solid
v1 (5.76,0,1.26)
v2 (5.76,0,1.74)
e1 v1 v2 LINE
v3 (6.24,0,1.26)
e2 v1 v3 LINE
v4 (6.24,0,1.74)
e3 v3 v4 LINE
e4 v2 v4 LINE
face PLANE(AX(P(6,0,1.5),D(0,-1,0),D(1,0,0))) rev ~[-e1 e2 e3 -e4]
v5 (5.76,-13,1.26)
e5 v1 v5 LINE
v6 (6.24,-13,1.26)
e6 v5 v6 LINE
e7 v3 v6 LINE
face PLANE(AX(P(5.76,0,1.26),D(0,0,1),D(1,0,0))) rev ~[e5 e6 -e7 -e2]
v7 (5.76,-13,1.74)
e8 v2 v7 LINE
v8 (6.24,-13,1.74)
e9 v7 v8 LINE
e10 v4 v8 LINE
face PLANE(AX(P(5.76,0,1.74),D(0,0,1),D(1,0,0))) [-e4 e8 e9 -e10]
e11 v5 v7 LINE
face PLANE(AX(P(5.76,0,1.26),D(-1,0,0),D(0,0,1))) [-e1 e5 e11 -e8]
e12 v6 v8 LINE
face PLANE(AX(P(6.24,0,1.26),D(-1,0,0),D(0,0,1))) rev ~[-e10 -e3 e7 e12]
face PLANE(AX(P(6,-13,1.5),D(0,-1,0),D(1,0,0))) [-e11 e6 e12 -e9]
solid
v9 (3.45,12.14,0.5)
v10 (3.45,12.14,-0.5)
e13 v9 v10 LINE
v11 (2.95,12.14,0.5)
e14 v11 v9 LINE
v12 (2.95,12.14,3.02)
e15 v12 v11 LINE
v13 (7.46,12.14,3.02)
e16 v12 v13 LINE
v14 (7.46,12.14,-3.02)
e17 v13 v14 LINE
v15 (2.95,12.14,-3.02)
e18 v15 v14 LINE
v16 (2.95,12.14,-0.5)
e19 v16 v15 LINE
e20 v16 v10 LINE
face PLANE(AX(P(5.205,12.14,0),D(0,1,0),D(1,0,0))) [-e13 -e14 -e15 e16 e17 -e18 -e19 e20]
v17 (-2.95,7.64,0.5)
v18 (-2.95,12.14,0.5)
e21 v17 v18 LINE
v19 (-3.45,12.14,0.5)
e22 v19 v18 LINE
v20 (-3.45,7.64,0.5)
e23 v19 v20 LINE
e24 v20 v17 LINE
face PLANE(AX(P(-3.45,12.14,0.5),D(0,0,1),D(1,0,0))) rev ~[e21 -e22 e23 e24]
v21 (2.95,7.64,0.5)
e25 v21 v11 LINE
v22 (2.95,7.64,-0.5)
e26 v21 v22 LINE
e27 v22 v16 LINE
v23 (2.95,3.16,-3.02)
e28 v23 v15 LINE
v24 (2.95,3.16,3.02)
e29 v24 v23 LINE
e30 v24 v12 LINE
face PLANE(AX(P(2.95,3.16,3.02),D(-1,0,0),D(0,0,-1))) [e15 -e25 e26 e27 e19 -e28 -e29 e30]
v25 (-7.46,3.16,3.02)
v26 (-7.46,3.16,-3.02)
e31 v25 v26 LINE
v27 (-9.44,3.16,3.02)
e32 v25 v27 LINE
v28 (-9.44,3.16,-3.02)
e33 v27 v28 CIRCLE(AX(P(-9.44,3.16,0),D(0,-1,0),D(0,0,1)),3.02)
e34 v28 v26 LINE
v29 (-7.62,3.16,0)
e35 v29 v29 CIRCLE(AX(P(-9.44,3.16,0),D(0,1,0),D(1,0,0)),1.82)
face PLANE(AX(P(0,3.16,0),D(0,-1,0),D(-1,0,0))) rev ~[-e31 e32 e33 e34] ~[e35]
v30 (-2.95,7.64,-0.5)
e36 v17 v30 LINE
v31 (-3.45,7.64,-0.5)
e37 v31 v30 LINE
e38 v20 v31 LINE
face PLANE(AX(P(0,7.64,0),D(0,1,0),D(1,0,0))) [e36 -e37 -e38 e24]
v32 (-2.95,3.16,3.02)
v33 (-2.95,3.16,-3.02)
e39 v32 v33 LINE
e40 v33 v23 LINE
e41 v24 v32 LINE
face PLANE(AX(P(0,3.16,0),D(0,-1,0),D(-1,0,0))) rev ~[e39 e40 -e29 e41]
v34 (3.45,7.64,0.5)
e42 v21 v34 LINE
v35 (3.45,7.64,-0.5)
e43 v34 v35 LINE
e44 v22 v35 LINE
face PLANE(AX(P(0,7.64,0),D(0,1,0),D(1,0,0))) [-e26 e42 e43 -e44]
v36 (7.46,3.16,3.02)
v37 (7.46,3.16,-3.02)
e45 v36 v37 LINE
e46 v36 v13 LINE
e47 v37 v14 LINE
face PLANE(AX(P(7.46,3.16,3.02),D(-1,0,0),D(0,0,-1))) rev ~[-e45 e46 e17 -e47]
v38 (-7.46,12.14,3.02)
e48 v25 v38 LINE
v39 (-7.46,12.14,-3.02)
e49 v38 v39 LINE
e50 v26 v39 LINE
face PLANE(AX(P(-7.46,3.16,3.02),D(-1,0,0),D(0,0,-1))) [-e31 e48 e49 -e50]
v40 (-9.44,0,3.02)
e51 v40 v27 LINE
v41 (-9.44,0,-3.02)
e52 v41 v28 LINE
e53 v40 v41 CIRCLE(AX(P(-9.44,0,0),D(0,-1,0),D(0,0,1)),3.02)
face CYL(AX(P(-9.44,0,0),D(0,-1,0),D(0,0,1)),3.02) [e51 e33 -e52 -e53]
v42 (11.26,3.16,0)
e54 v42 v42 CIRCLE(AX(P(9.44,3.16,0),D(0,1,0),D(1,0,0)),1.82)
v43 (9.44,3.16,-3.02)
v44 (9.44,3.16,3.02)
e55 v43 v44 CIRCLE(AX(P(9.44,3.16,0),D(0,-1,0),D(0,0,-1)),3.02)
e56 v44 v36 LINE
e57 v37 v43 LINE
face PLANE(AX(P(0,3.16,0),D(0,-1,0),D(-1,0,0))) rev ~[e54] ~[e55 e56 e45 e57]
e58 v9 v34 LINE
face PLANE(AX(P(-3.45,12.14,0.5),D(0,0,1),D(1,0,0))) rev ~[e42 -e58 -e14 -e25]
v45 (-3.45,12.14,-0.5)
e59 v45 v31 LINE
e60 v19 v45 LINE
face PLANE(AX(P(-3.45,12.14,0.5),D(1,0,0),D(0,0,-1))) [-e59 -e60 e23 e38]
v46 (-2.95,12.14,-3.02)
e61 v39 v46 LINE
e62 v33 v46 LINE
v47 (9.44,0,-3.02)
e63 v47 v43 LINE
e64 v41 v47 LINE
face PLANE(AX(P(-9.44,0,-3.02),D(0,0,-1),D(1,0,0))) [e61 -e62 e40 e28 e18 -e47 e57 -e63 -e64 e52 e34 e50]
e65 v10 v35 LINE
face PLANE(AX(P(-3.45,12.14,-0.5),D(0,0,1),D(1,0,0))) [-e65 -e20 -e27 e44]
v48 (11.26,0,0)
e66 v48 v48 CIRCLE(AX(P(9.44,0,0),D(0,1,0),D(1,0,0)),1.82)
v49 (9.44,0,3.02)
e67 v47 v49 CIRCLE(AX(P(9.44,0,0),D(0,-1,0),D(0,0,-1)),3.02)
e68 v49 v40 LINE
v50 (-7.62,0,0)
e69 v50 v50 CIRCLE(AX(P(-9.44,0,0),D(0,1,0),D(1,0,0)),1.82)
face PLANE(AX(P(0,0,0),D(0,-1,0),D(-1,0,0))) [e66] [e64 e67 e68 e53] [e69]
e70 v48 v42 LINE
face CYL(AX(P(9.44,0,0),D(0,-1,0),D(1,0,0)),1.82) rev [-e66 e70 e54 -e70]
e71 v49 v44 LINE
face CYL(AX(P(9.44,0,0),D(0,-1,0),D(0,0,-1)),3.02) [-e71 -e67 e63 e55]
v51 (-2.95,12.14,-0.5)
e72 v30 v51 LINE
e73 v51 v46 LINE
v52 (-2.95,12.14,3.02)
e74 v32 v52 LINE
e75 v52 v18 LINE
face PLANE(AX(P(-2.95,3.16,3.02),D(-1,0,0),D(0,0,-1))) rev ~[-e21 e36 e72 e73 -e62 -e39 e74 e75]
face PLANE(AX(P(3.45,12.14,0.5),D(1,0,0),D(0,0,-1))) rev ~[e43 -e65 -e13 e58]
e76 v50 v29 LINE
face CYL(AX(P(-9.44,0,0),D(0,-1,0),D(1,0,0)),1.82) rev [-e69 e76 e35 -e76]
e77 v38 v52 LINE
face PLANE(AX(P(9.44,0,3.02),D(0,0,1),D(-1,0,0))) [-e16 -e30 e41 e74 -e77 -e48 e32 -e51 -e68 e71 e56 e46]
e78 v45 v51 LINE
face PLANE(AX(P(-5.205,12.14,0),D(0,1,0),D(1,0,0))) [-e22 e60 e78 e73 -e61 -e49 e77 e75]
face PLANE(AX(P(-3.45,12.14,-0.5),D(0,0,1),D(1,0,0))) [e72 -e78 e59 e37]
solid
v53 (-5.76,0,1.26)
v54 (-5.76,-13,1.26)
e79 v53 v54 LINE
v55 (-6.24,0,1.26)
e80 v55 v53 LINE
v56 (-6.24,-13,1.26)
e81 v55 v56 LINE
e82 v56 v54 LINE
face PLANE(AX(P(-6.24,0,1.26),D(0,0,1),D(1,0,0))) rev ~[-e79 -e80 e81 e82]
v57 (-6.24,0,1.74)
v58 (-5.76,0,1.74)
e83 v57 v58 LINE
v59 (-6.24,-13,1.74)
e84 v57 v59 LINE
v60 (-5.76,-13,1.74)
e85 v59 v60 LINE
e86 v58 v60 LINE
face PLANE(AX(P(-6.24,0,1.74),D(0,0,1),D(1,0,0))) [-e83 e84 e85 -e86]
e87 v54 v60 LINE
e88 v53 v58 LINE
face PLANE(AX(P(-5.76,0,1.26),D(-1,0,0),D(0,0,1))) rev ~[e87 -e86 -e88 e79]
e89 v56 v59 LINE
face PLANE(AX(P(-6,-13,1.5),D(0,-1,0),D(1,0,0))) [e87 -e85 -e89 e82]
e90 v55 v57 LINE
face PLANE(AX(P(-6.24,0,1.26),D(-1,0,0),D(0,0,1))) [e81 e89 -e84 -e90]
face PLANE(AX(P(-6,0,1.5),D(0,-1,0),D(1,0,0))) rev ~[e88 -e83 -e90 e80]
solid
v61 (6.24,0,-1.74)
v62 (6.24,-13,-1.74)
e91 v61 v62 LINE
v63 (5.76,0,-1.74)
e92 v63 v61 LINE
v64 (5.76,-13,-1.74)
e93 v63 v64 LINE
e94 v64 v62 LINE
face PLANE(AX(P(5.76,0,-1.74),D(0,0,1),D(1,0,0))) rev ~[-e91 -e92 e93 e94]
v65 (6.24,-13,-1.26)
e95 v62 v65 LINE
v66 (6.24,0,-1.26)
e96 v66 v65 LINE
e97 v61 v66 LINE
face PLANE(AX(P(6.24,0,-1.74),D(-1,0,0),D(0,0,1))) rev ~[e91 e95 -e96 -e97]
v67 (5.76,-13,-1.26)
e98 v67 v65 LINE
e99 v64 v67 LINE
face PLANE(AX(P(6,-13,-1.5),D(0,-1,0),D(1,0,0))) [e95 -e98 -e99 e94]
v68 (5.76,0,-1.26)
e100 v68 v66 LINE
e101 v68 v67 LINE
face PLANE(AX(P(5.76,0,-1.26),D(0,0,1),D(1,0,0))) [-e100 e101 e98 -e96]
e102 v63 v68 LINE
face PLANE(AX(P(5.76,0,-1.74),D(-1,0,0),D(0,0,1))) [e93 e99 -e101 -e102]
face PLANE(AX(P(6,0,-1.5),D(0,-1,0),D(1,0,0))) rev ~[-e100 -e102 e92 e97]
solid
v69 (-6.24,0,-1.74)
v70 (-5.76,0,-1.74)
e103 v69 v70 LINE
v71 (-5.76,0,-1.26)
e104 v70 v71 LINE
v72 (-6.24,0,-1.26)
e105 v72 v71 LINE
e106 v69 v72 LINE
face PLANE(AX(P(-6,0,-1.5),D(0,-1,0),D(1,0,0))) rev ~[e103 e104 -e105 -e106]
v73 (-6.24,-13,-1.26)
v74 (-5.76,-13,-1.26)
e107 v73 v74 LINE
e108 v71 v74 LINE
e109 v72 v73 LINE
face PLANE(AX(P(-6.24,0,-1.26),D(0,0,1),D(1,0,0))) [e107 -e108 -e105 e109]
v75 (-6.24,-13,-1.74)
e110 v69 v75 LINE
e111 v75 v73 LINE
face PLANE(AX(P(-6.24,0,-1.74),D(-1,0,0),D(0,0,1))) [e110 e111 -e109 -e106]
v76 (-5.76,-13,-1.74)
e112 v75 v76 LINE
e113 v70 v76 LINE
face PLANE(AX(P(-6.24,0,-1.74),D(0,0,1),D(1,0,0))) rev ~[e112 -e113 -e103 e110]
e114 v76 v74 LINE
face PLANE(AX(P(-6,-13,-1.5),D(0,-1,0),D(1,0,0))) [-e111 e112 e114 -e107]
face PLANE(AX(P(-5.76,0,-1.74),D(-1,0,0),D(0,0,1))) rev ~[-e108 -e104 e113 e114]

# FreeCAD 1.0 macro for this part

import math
import FreeCAD as App
import Part
import Sketcher
from FreeCAD import Vector

doc = App.newDocument("Part")
params = doc.addObject("Spreadsheet::Sheet", "Params")
for row, (alias, value) in enumerate([
    ("sketch1_diameter", "3.64 mm"),
    ("sketch1_radius", "3.02 mm"),
    ("sketch1_width", "18.88 mm"),
    ("pad1_length", "3.16 mm"),
    ("sketch2_width", "4.51 mm"),
    ("sketch2_height", "6.04 mm"),
    ("pad2_length", "8.98 mm"),
    ("sketch3_height", "1 mm"),
    ("sketch3_width", "6.9 mm"),
    ("pocket1_length", "4.5 mm"),
    ("sketch4_width", "0.48 mm"),
    ("pad3_length", "13 mm"),
    ("sketch5_width", "0.48 mm"),
    ("pad4_length", "13 mm"),
    ("sketch6_width", "0.48 mm"),
    ("pad5_length", "13 mm"),
    ("sketch7_width", "0.48 mm"),
    ("pad6_length", "13 mm"),
], start=1):
    params.set(f"A{row}", alias)
    params.set(f"B{row}", "=" + value)
    params.setAlias(f"B{row}", alias)

body = doc.addObject("PartDesign::Body", "Body")

# Sketch on XZ plane
sketch1 = body.newObject("Sketcher::SketchObject", "Sketch")
sketch1.AttachmentSupport = (doc.getObject("XZ_Plane"), [""])
sketch1.MapMode = "FlatFace"
sketch1.addGeometry(Part.LineSegment(Vector(9.44, -3.02, 0), Vector(-9.44, -3.02, 0)), False)
sketch1.addGeometry(Part.ArcOfCircle(Part.Circle(Vector(-9.44, 0, 0), Vector(0, 0, 1), 3.02), math.radians(90), math.radians(270)), False)
sketch1.addGeometry(Part.LineSegment(Vector(-9.44, 3.02, 0), Vector(9.44, 3.02, 0)), False)
sketch1.addGeometry(Part.ArcOfCircle(Part.Circle(Vector(9.44, 0, 0), Vector(0, 0, 1), 3.02), math.radians(-90), math.radians(90)), False)
sketch1.addGeometry(Part.Circle(Vector(9.44, 0, 0), Vector(0, 0, 1), 1.82), False)
sketch1.addGeometry(Part.Circle(Vector(-9.44, 0, 0), Vector(0, 0, 1), 1.82), False)
sketch1.addConstraint(Sketcher.Constraint("Tangent", 0, 2, 1, 2))
sketch1.addConstraint(Sketcher.Constraint("Tangent", 1, 1, 2, 1))
sketch1.addConstraint(Sketcher.Constraint("Tangent", 2, 2, 3, 2))
sketch1.addConstraint(Sketcher.Constraint("Tangent", 3, 1, 0, 1))
sketch1.addConstraint(Sketcher.Constraint("Horizontal", 0))
sketch1.addConstraint(Sketcher.Constraint("Horizontal", 2))
sketch1.addConstraint(Sketcher.Constraint("Coincident", 4, 3, 3, 3))
sketch1.addConstraint(Sketcher.Constraint("Coincident", 5, 3, 1, 3))
sketch1.addConstraint(Sketcher.Constraint("Equal", 4, 5))
sketch1.addConstraint(Sketcher.Constraint("Symmetric", 1, 3, 3, 3, -1, 1))
sketch1.addConstraint(Sketcher.Constraint("Diameter", 4, 3.64))
sketch1.addConstraint(Sketcher.Constraint("Radius", 1, 3.02))
sketch1.addConstraint(Sketcher.Constraint("DistanceX", 0, 2, 0, 1, 18.88))
sketch1.setExpression("Constraints[10]", "Params.sketch1_diameter")
sketch1.setExpression("Constraints[11]", "Params.sketch1_radius")
sketch1.setExpression("Constraints[12]", "Params.sketch1_width")
pad1 = body.newObject("PartDesign::Pad", "Pad")
pad1.Profile = sketch1
pad1.setExpression("Length", "Params.pad1_length")
pad1.Reversed = True

# Sketch on XZ plane
sketch2 = body.newObject("Sketcher::SketchObject", "Sketch001")
sketch2.AttachmentSupport = (doc.getObject("XZ_Plane"), [""])
sketch2.MapMode = "FlatFace"
sketch2.AttachmentOffset = App.Placement(Vector(0, 0, -3.16), App.Rotation())
sketch2.addGeometry(Part.LineSegment(Vector(2.95, -3.02, 0), Vector(2.95, 3.02, 0)), False)
sketch2.addGeometry(Part.LineSegment(Vector(2.95, 3.02, 0), Vector(7.46, 3.02, 0)), False)
sketch2.addGeometry(Part.LineSegment(Vector(7.46, 3.02, 0), Vector(7.46, -3.02, 0)), False)
sketch2.addGeometry(Part.LineSegment(Vector(7.46, -3.02, 0), Vector(2.95, -3.02, 0)), False)
sketch2.addGeometry(Part.LineSegment(Vector(-7.46, -3.02, 0), Vector(-7.46, 3.02, 0)), False)
sketch2.addGeometry(Part.LineSegment(Vector(-7.46, 3.02, 0), Vector(-2.95, 3.02, 0)), False)
sketch2.addGeometry(Part.LineSegment(Vector(-2.95, 3.02, 0), Vector(-2.95, -3.02, 0)), False)
sketch2.addGeometry(Part.LineSegment(Vector(-2.95, -3.02, 0), Vector(-7.46, -3.02, 0)), False)
sketch2.addConstraint(Sketcher.Constraint("Coincident", 0, 2, 1, 1))
sketch2.addConstraint(Sketcher.Constraint("Coincident", 1, 2, 2, 1))
sketch2.addConstraint(Sketcher.Constraint("Coincident", 2, 2, 3, 1))
sketch2.addConstraint(Sketcher.Constraint("Coincident", 3, 2, 0, 1))
sketch2.addConstraint(Sketcher.Constraint("Coincident", 4, 2, 5, 1))
sketch2.addConstraint(Sketcher.Constraint("Coincident", 5, 2, 6, 1))
sketch2.addConstraint(Sketcher.Constraint("Coincident", 6, 2, 7, 1))
sketch2.addConstraint(Sketcher.Constraint("Coincident", 7, 2, 4, 1))
sketch2.addConstraint(Sketcher.Constraint("Vertical", 0))
sketch2.addConstraint(Sketcher.Constraint("Horizontal", 1))
sketch2.addConstraint(Sketcher.Constraint("Vertical", 2))
sketch2.addConstraint(Sketcher.Constraint("Horizontal", 3))
sketch2.addConstraint(Sketcher.Constraint("Vertical", 4))
sketch2.addConstraint(Sketcher.Constraint("Horizontal", 5))
sketch2.addConstraint(Sketcher.Constraint("Vertical", 6))
sketch2.addConstraint(Sketcher.Constraint("Horizontal", 7))
sketch2.addConstraint(Sketcher.Constraint("Symmetric", 2, 2, 4, 2, -1, 1))
sketch2.addConstraint(Sketcher.Constraint("Symmetric", 0, 2, 6, 2, -1, 1))
sketch2.addConstraint(Sketcher.Constraint("Horizontal", 1, 2, 4, 2))
sketch2.addConstraint(Sketcher.Constraint("DistanceX", 1, 1, 1, 2, 4.51))
sketch2.addConstraint(Sketcher.Constraint("DistanceY", 0, 1, 0, 2, 6.04))
sketch2.addConstraint(Sketcher.Constraint("DistanceX", 5, 2, 0, 2, 5.9))
sketch2.setExpression("Constraints[19]", "Params.sketch2_width")
sketch2.setExpression("Constraints[20]", "Params.sketch2_height")
pad2 = body.newObject("PartDesign::Pad", "Pad001")
pad2.Profile = sketch2
pad2.setExpression("Length", "Params.pad2_length")
pad2.Reversed = True

# Sketch on XZ plane
sketch3 = body.newObject("Sketcher::SketchObject", "Sketch002")
sketch3.AttachmentSupport = (doc.getObject("XZ_Plane"), [""])
sketch3.MapMode = "FlatFace"
sketch3.AttachmentOffset = App.Placement(Vector(0, 0, -12.14), App.Rotation())
sketch3.addGeometry(Part.LineSegment(Vector(-3.45, -0.5, 0), Vector(-3.45, 0.5, 0)), False)
sketch3.addGeometry(Part.LineSegment(Vector(-3.45, 0.5, 0), Vector(3.45, 0.5, 0)), False)
sketch3.addGeometry(Part.LineSegment(Vector(3.45, 0.5, 0), Vector(3.45, -0.5, 0)), False)
sketch3.addGeometry(Part.LineSegment(Vector(3.45, -0.5, 0), Vector(-3.45, -0.5, 0)), False)
sketch3.addConstraint(Sketcher.Constraint("Coincident", 0, 2, 1, 1))
sketch3.addConstraint(Sketcher.Constraint("Coincident", 1, 2, 2, 1))
sketch3.addConstraint(Sketcher.Constraint("Coincident", 2, 2, 3, 1))
sketch3.addConstraint(Sketcher.Constraint("Coincident", 3, 2, 0, 1))
sketch3.addConstraint(Sketcher.Constraint("Vertical", 0))
sketch3.addConstraint(Sketcher.Constraint("Horizontal", 1))
sketch3.addConstraint(Sketcher.Constraint("Vertical", 2))
sketch3.addConstraint(Sketcher.Constraint("Horizontal", 3))
sketch3.addConstraint(Sketcher.Constraint("Symmetric", 0, 2, 2, 2, -1, 1))
sketch3.addConstraint(Sketcher.Constraint("DistanceY", 0, 1, 0, 2, 1.0))
sketch3.addConstraint(Sketcher.Constraint("DistanceX", 1, 1, 1, 2, 6.9))
sketch3.setExpression("Constraints[9]", "Params.sketch3_height")
sketch3.setExpression("Constraints[10]", "Params.sketch3_width")
pocket1 = body.newObject("PartDesign::Pocket", "Pocket")
pocket1.Profile = sketch3
pocket1.setExpression("Length", "Params.pocket1_length")
pocket1.Reversed = True
body2 = doc.addObject("PartDesign::Body", "Body001")

# Sketch on XZ plane
sketch4 = body2.newObject("Sketcher::SketchObject", "Sketch003")
sketch4.AttachmentSupport = (doc.getObject("XZ_Plane001"), [""])
sketch4.MapMode = "FlatFace"
sketch4.addGeometry(Part.LineSegment(Vector(5.76, 1.74, 0), Vector(5.76, 1.26, 0)), False)
sketch4.addGeometry(Part.LineSegment(Vector(5.76, 1.26, 0), Vector(6.24, 1.26, 0)), False)
sketch4.addGeometry(Part.LineSegment(Vector(6.24, 1.26, 0), Vector(6.24, 1.74, 0)), False)
sketch4.addGeometry(Part.LineSegment(Vector(6.24, 1.74, 0), Vector(5.76, 1.74, 0)), False)
sketch4.addConstraint(Sketcher.Constraint("Coincident", 0, 2, 1, 1))
sketch4.addConstraint(Sketcher.Constraint("Coincident", 1, 2, 2, 1))
sketch4.addConstraint(Sketcher.Constraint("Coincident", 2, 2, 3, 1))
sketch4.addConstraint(Sketcher.Constraint("Coincident", 3, 2, 0, 1))
sketch4.addConstraint(Sketcher.Constraint("Vertical", 0))
sketch4.addConstraint(Sketcher.Constraint("Horizontal", 1))
sketch4.addConstraint(Sketcher.Constraint("Vertical", 2))
sketch4.addConstraint(Sketcher.Constraint("Horizontal", 3))
sketch4.addConstraint(Sketcher.Constraint("Equal", 3, 0))
sketch4.addConstraint(Sketcher.Constraint("DistanceX", 1, 1, 1, 2, 0.48))
sketch4.addConstraint(Sketcher.Constraint("DistanceX", -1, 1, 0, 2, 5.76))
sketch4.addConstraint(Sketcher.Constraint("DistanceY", -1, 1, 0, 2, 1.26))
sketch4.setExpression("Constraints[9]", "Params.sketch4_width")
pad3 = body2.newObject("PartDesign::Pad", "Pad002")
pad3.Profile = sketch4
pad3.setExpression("Length", "Params.pad3_length")
body3 = doc.addObject("PartDesign::Body", "Body002")

# Sketch on XZ plane
sketch5 = body3.newObject("Sketcher::SketchObject", "Sketch004")
sketch5.AttachmentSupport = (doc.getObject("XZ_Plane002"), [""])
sketch5.MapMode = "FlatFace"
sketch5.addGeometry(Part.LineSegment(Vector(-6.24, 1.74, 0), Vector(-6.24, 1.26, 0)), False)
sketch5.addGeometry(Part.LineSegment(Vector(-6.24, 1.26, 0), Vector(-5.76, 1.26, 0)), False)
sketch5.addGeometry(Part.LineSegment(Vector(-5.76, 1.26, 0), Vector(-5.76, 1.74, 0)), False)
sketch5.addGeometry(Part.LineSegment(Vector(-5.76, 1.74, 0), Vector(-6.24, 1.74, 0)), False)
sketch5.addConstraint(Sketcher.Constraint("Coincident", 0, 2, 1, 1))
sketch5.addConstraint(Sketcher.Constraint("Coincident", 1, 2, 2, 1))
sketch5.addConstraint(Sketcher.Constraint("Coincident", 2, 2, 3, 1))
sketch5.addConstraint(Sketcher.Constraint("Coincident", 3, 2, 0, 1))
sketch5.addConstraint(Sketcher.Constraint("Vertical", 0))
sketch5.addConstraint(Sketcher.Constraint("Horizontal", 1))
sketch5.addConstraint(Sketcher.Constraint("Vertical", 2))
sketch5.addConstraint(Sketcher.Constraint("Horizontal", 3))
sketch5.addConstraint(Sketcher.Constraint("Equal", 3, 0))
sketch5.addConstraint(Sketcher.Constraint("DistanceX", 1, 1, 1, 2, 0.48))
sketch5.addConstraint(Sketcher.Constraint("DistanceX", 0, 2, -1, 1, 6.24))
sketch5.addConstraint(Sketcher.Constraint("DistanceY", -1, 1, 0, 2, 1.26))
sketch5.setExpression("Constraints[9]", "Params.sketch5_width")
pad4 = body3.newObject("PartDesign::Pad", "Pad003")
pad4.Profile = sketch5
pad4.setExpression("Length", "Params.pad4_length")
body4 = doc.addObject("PartDesign::Body", "Body003")

# Sketch on XZ plane
sketch6 = body4.newObject("Sketcher::SketchObject", "Sketch005")
sketch6.AttachmentSupport = (doc.getObject("XZ_Plane003"), [""])
sketch6.MapMode = "FlatFace"
sketch6.addGeometry(Part.LineSegment(Vector(5.76, -1.26, 0), Vector(5.76, -1.74, 0)), False)
sketch6.addGeometry(Part.LineSegment(Vector(5.76, -1.74, 0), Vector(6.24, -1.74, 0)), False)
sketch6.addGeometry(Part.LineSegment(Vector(6.24, -1.74, 0), Vector(6.24, -1.26, 0)), False)
sketch6.addGeometry(Part.LineSegment(Vector(6.24, -1.26, 0), Vector(5.76, -1.26, 0)), False)
sketch6.addConstraint(Sketcher.Constraint("Coincident", 0, 2, 1, 1))
sketch6.addConstraint(Sketcher.Constraint("Coincident", 1, 2, 2, 1))
sketch6.addConstraint(Sketcher.Constraint("Coincident", 2, 2, 3, 1))
sketch6.addConstraint(Sketcher.Constraint("Coincident", 3, 2, 0, 1))
sketch6.addConstraint(Sketcher.Constraint("Vertical", 0))
sketch6.addConstraint(Sketcher.Constraint("Horizontal", 1))
sketch6.addConstraint(Sketcher.Constraint("Vertical", 2))
sketch6.addConstraint(Sketcher.Constraint("Horizontal", 3))
sketch6.addConstraint(Sketcher.Constraint("Equal", 3, 0))
sketch6.addConstraint(Sketcher.Constraint("DistanceX", 1, 1, 1, 2, 0.48))
sketch6.addConstraint(Sketcher.Constraint("DistanceX", -1, 1, 0, 2, 5.76))
sketch6.addConstraint(Sketcher.Constraint("DistanceY", 0, 2, -1, 1, 1.74))
sketch6.setExpression("Constraints[9]", "Params.sketch6_width")
pad5 = body4.newObject("PartDesign::Pad", "Pad004")
pad5.Profile = sketch6
pad5.setExpression("Length", "Params.pad5_length")
body5 = doc.addObject("PartDesign::Body", "Body004")

# Sketch on XZ plane
sketch7 = body5.newObject("Sketcher::SketchObject", "Sketch006")
sketch7.AttachmentSupport = (doc.getObject("XZ_Plane004"), [""])
sketch7.MapMode = "FlatFace"
sketch7.addGeometry(Part.LineSegment(Vector(-6.24, -1.26, 0), Vector(-6.24, -1.74, 0)), False)
sketch7.addGeometry(Part.LineSegment(Vector(-6.24, -1.74, 0), Vector(-5.76, -1.74, 0)), False)
sketch7.addGeometry(Part.LineSegment(Vector(-5.76, -1.74, 0), Vector(-5.76, -1.26, 0)), False)
sketch7.addGeometry(Part.LineSegment(Vector(-5.76, -1.26, 0), Vector(-6.24, -1.26, 0)), False)
sketch7.addConstraint(Sketcher.Constraint("Coincident", 0, 2, 1, 1))
sketch7.addConstraint(Sketcher.Constraint("Coincident", 1, 2, 2, 1))
sketch7.addConstraint(Sketcher.Constraint("Coincident", 2, 2, 3, 1))
sketch7.addConstraint(Sketcher.Constraint("Coincident", 3, 2, 0, 1))
sketch7.addConstraint(Sketcher.Constraint("Vertical", 0))
sketch7.addConstraint(Sketcher.Constraint("Horizontal", 1))
sketch7.addConstraint(Sketcher.Constraint("Vertical", 2))
sketch7.addConstraint(Sketcher.Constraint("Horizontal", 3))
sketch7.addConstraint(Sketcher.Constraint("Equal", 3, 0))
sketch7.addConstraint(Sketcher.Constraint("DistanceX", 1, 1, 1, 2, 0.48))
sketch7.addConstraint(Sketcher.Constraint("DistanceX", 0, 2, -1, 1, 6.24))
sketch7.addConstraint(Sketcher.Constraint("DistanceY", 0, 2, -1, 1, 1.74))
sketch7.setExpression("Constraints[9]", "Params.sketch7_width")
pad6 = body5.newObject("PartDesign::Pad", "Pad005")
pad6.Profile = sketch7
pad6.setExpression("Length", "Params.pad6_length")

doc.recompute()
